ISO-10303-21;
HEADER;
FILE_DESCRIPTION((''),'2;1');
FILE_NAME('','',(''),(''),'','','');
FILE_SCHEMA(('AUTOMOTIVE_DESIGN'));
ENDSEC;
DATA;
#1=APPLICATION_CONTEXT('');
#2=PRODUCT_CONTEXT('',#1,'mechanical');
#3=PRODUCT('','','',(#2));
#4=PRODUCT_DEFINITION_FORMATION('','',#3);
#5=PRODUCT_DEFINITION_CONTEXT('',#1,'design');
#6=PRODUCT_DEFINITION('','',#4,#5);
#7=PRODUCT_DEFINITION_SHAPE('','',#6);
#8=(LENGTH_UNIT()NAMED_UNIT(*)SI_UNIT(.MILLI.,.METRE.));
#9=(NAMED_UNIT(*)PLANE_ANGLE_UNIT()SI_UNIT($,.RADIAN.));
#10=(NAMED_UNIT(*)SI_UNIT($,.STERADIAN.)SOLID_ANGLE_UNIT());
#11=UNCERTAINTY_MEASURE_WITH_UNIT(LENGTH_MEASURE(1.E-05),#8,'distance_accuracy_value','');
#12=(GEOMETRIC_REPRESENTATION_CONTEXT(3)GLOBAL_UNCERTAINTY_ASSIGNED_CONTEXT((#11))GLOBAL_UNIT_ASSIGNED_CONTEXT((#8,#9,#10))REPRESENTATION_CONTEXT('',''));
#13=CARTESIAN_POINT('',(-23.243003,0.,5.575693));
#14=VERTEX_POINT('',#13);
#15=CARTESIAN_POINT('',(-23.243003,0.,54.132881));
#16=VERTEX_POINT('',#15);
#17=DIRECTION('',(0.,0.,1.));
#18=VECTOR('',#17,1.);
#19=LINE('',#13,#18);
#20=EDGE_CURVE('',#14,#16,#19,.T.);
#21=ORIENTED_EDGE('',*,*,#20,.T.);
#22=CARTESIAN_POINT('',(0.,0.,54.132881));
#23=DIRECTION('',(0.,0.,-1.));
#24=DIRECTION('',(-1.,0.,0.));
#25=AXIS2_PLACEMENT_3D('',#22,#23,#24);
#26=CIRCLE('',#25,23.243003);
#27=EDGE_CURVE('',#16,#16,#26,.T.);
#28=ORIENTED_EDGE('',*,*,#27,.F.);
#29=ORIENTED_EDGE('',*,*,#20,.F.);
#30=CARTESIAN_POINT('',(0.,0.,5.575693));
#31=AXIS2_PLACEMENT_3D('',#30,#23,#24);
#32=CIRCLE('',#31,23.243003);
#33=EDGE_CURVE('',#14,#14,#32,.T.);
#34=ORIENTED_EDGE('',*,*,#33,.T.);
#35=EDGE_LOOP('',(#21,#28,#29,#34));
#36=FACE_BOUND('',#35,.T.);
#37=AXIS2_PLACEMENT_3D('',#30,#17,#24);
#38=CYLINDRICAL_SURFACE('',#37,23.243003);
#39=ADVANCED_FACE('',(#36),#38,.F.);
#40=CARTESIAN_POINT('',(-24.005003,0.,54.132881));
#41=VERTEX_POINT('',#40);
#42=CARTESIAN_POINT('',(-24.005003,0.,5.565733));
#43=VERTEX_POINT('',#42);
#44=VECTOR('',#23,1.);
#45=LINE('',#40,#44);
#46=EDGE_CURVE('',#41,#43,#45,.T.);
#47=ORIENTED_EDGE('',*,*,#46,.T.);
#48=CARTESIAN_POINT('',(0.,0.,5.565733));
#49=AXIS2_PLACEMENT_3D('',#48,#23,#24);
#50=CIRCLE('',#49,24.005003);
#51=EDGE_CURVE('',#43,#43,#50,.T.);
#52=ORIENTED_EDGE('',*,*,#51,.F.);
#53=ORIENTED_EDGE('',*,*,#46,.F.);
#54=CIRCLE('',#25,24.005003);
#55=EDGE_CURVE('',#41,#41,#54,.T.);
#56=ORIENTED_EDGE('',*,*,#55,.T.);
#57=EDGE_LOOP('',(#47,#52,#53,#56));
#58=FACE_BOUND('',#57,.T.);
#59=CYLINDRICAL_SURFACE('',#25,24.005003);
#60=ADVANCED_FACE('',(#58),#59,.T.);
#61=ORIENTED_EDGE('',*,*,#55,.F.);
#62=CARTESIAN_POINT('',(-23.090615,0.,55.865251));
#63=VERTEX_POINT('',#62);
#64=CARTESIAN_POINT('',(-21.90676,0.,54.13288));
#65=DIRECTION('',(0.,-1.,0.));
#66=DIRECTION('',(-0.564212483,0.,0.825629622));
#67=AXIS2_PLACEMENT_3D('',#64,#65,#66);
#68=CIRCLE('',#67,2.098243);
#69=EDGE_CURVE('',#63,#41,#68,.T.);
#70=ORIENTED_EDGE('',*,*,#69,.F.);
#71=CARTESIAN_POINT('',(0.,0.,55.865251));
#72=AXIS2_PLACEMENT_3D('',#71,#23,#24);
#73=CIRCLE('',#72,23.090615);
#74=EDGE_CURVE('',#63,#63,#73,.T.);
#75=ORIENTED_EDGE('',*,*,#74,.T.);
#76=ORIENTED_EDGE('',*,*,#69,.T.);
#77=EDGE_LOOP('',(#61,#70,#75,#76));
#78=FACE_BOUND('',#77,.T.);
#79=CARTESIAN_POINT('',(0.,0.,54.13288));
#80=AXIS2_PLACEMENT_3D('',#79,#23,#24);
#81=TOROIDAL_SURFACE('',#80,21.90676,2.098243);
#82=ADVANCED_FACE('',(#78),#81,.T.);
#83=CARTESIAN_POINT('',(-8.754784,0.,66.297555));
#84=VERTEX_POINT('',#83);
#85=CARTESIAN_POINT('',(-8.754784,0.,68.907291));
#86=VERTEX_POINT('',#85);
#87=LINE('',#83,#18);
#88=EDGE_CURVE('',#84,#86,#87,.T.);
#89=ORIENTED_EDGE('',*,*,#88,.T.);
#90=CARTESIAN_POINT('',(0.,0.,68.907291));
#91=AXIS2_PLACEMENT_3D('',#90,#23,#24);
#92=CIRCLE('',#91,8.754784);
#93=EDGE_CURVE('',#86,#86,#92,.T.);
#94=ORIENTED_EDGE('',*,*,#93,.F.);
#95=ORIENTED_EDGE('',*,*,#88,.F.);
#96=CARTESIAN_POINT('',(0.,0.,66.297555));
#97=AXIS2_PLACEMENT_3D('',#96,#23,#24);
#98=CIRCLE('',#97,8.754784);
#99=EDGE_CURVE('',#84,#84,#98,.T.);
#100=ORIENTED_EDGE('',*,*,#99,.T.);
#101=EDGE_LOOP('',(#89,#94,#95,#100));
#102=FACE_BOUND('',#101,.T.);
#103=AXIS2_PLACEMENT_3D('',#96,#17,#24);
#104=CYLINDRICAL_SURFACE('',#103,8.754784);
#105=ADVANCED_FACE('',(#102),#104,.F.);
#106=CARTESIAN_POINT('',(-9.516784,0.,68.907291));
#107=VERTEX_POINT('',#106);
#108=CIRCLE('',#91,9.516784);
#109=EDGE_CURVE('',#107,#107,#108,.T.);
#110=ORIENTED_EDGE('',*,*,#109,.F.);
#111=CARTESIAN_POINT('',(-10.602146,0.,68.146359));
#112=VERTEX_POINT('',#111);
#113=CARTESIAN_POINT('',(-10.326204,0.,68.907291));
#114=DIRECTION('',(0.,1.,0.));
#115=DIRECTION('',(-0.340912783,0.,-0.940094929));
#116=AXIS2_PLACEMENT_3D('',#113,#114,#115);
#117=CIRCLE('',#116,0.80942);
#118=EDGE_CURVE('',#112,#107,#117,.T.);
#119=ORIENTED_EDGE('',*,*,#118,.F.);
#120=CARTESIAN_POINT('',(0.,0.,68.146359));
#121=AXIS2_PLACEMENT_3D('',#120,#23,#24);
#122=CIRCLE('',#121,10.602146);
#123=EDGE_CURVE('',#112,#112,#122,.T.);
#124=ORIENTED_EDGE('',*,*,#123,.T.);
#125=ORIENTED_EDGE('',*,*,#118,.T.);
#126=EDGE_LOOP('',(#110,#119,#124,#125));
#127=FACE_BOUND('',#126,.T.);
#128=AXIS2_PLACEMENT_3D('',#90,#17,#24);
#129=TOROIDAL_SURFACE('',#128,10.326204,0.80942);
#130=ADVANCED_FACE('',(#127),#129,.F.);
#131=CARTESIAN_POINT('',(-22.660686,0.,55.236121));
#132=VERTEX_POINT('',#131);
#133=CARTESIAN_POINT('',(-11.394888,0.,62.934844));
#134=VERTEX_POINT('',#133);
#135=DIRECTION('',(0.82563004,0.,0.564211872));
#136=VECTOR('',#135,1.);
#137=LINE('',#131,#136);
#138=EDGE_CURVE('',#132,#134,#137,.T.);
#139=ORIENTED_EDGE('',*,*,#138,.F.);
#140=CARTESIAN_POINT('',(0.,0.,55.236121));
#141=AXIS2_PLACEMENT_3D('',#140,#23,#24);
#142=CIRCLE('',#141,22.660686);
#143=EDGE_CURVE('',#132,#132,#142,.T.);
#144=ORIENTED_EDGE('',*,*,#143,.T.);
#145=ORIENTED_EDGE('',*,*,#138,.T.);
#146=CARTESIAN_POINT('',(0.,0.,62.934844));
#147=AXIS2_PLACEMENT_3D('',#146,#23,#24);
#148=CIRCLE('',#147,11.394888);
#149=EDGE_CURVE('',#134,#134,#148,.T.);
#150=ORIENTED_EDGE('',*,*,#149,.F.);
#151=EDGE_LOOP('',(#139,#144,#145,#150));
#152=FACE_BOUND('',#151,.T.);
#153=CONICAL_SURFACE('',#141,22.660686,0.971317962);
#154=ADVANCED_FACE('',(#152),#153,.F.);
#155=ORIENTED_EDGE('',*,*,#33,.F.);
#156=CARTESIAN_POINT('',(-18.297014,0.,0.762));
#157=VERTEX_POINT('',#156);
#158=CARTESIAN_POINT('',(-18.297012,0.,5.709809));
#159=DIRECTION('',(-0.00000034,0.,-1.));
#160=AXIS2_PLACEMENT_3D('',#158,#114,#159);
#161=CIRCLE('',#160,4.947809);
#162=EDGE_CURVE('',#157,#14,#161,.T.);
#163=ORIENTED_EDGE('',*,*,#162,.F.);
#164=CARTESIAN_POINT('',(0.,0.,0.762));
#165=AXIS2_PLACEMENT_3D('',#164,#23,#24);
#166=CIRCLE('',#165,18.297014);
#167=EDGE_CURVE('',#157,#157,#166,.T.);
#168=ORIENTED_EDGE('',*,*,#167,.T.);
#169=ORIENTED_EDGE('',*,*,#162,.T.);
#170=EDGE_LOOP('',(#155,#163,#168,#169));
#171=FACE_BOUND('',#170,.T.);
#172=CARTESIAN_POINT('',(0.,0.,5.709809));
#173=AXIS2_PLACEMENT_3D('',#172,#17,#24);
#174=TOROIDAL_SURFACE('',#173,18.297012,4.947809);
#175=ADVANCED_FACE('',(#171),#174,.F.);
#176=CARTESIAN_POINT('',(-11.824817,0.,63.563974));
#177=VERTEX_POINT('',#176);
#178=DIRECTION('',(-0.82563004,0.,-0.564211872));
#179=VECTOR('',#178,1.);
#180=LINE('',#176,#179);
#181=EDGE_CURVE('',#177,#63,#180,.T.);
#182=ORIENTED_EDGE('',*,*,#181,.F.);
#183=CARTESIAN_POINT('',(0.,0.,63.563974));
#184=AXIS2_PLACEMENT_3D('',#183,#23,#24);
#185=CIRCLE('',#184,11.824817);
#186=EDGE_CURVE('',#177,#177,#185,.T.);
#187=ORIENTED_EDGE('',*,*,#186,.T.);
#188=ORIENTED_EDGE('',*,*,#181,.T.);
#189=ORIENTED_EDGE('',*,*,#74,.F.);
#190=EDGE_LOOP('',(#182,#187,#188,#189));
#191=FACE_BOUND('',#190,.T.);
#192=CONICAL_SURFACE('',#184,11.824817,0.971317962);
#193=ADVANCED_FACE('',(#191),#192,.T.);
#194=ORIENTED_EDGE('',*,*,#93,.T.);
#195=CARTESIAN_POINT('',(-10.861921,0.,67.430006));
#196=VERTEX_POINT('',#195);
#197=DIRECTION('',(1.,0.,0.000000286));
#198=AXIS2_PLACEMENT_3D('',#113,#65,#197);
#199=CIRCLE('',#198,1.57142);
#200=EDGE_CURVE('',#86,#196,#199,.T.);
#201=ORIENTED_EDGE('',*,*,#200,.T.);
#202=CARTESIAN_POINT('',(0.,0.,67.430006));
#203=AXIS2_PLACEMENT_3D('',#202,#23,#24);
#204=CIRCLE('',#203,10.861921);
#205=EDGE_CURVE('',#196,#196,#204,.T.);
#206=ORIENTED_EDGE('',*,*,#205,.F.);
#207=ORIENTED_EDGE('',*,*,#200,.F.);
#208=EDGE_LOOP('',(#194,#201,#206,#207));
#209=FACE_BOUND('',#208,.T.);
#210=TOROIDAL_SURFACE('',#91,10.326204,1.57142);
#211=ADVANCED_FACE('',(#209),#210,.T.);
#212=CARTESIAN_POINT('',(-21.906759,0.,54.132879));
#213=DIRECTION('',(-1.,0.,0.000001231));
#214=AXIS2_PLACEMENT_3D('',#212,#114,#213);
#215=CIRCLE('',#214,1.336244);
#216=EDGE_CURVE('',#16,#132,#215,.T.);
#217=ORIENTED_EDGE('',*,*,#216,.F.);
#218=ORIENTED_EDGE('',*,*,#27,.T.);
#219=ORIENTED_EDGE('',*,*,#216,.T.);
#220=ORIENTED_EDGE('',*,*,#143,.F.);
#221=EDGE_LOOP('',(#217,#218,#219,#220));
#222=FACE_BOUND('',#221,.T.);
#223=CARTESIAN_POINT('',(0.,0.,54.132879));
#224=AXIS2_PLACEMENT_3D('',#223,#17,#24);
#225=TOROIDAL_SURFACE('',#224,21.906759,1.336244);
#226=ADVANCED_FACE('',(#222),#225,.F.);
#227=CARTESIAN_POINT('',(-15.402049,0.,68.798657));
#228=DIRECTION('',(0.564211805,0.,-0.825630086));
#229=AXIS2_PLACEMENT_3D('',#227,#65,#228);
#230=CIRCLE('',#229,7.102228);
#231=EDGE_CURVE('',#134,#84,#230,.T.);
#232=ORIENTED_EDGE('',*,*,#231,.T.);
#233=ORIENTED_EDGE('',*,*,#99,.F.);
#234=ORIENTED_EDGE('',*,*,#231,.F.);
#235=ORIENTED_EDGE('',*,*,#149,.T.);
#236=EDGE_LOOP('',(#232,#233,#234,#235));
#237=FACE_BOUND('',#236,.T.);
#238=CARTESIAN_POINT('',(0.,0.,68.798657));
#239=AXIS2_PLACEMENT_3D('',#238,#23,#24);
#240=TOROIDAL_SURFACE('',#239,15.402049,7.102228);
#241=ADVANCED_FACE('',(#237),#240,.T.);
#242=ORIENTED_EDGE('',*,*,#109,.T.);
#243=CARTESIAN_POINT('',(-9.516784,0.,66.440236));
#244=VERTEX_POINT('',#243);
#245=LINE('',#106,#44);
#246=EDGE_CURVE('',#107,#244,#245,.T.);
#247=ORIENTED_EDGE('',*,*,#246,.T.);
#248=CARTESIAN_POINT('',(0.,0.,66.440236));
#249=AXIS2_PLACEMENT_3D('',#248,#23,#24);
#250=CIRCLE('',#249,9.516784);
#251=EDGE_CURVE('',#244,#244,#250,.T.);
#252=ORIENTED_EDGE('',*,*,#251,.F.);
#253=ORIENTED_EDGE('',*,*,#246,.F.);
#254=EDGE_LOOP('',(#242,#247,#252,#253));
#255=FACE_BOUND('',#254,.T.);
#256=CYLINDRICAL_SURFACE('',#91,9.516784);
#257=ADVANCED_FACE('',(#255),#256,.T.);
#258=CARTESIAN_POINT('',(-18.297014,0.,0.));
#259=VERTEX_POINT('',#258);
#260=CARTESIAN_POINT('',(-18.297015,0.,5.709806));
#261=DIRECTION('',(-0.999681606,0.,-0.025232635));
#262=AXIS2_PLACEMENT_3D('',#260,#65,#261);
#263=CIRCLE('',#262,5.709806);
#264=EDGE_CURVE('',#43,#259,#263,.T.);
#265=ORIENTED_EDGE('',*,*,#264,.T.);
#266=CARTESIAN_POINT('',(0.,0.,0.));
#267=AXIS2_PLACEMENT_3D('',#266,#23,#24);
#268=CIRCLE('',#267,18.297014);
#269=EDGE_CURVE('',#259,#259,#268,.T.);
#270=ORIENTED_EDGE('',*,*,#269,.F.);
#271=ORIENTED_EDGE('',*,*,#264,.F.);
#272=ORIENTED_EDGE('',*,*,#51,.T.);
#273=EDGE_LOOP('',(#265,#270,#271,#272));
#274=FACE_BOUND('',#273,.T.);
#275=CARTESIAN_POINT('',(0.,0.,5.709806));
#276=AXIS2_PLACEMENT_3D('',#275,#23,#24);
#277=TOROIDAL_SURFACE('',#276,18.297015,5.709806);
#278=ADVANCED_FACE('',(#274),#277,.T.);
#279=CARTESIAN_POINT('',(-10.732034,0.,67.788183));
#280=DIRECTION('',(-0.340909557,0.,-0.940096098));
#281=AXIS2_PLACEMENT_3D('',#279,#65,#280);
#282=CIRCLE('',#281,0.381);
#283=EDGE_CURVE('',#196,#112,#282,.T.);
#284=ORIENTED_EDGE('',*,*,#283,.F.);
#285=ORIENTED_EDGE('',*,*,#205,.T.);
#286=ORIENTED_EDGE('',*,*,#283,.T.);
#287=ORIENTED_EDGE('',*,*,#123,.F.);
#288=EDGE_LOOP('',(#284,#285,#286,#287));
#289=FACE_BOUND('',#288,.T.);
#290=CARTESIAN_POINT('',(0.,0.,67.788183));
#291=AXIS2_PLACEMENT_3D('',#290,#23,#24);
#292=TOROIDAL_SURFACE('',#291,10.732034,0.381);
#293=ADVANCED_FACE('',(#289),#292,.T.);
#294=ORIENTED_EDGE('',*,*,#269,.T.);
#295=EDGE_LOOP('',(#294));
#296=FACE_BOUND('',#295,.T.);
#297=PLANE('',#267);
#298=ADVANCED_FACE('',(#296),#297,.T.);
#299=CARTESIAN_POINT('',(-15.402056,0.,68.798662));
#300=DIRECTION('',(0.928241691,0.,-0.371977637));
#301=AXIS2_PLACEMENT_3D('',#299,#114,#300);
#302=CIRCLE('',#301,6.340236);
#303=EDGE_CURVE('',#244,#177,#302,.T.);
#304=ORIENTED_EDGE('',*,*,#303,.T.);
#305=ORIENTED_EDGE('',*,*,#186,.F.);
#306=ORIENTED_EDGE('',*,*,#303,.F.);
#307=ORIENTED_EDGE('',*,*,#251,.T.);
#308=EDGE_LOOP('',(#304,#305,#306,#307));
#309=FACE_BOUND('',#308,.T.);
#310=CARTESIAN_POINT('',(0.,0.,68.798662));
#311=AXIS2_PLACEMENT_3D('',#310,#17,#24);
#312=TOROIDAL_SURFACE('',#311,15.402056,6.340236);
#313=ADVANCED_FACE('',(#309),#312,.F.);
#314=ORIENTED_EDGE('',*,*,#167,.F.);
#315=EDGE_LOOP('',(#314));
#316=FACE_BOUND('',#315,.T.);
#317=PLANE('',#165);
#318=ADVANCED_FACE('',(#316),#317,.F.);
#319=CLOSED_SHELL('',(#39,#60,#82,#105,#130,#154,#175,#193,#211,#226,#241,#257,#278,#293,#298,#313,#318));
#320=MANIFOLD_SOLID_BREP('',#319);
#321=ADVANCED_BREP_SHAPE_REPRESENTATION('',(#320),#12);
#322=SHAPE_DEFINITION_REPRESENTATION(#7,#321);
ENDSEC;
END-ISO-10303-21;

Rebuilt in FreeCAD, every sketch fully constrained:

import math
import FreeCAD as App
import Part
import Sketcher
from FreeCAD import Vector
Q = App.Units.Quantity

doc = App.newDocument("Part")
body = doc.addObject("PartDesign::Body", "Body")

# Sketch on XZ plane
sketch1 = doc.addObject("Sketcher::SketchObject", "Sketch")
body.addObject(sketch1)
sketch1.AttachmentSupport = (doc.XZ_Plane, [""])
sketch1.MapMode = "FlatFace"
sketch1.addGeometry([
    Part.LineSegment(Vector(-18.3, 0, 0), Vector(0, 0, 0)),  # 0
    Part.LineSegment(Vector(0, 0, 0), Vector(0, 0.76, 0)),  # 1
    Part.LineSegment(Vector(0, 0.76, 0), Vector(-18.3, 0.76, 0)),  # 2
    Part.ArcOfCircle(Part.Circle(Vector(-18.3, 5.71, 0), Vector(0, 0, 1), 4.95), math.radians(-178), math.radians(-90)),  # 3
    Part.LineSegment(Vector(-23.24, 5.58, 0), Vector(-23.24, 54.13, 0)),  # 4
    Part.ArcOfCircle(Part.Circle(Vector(-21.91, 54.13, 0), Vector(0, 0, 1), 1.34), math.radians(124), math.radians(180)),  # 5
    Part.LineSegment(Vector(-22.66, 55.24, 0), Vector(-11.39, 62.93, 0)),  # 6
    Part.ArcOfCircle(Part.Circle(Vector(-15.4, 68.8, 0), Vector(0, 0, 1), 7.1), math.radians(-56), math.radians(-21)),  # 7
    Part.LineSegment(Vector(-8.75, 66.3, 0), Vector(-8.75, 68.91, 0)),  # 8
    Part.ArcOfCircle(Part.Circle(Vector(-10.33, 68.91, 0), Vector(0, 0, 1), 1.57), math.radians(0), math.radians(250)),  # 9
    Part.ArcOfCircle(Part.Circle(Vector(-10.73, 67.79, 0), Vector(0, 0, 1), 0.38), math.radians(-110), math.radians(70)),  # 10
    Part.ArcOfCircle(Part.Circle(Vector(-10.33, 68.91, 0), Vector(0, 0, 1), 0.81), math.radians(0), math.radians(250)),  # 11
    Part.LineSegment(Vector(-9.52, 68.91, 0), Vector(-9.52, 66.44, 0)),  # 12
    Part.ArcOfCircle(Part.Circle(Vector(-15.4, 68.8, 0), Vector(0, 0, 1), 6.34), math.radians(-56), math.radians(-22)),  # 13
    Part.LineSegment(Vector(-11.82, 63.56, 0), Vector(-23.09, 55.87, 0)),  # 14
    Part.ArcOfCircle(Part.Circle(Vector(-21.91, 54.13, 0), Vector(0, 0, 1), 2.1), math.radians(124), math.radians(180)),  # 15
    Part.LineSegment(Vector(-24.01, 54.13, 0), Vector(-24.01, 5.57, 0)),  # 16
    Part.ArcOfCircle(Part.Circle(Vector(-18.3, 5.71, 0), Vector(0, 0, 1), 5.71), math.radians(-179), math.radians(-90)),  # 17
], False)
sketch1.addConstraint([
    Sketcher.Constraint("Coincident", 0, 2, 1, 1),
    Sketcher.Constraint("Coincident", 1, 2, 2, 1),
    Sketcher.Constraint("Tangent", 2, 2, 3, 2),
    Sketcher.Constraint("Coincident", 3, 1, 4, 1),
    Sketcher.Constraint("Tangent", 4, 2, 5, 2),
    Sketcher.Constraint("Coincident", 5, 1, 6, 1),
    Sketcher.Constraint("Tangent", 6, 2, 7, 1),
    Sketcher.Constraint("Coincident", 7, 2, 8, 1),
    Sketcher.Constraint("Tangent", 8, 2, 9, 1),
    Sketcher.Constraint("Coincident", 9, 2, 10, 1),
    Sketcher.Constraint("Tangent", 10, 2, 11, 2),
    Sketcher.Constraint("Tangent", 11, 1, 12, 1),
    Sketcher.Constraint("Coincident", 12, 2, 13, 2),
    Sketcher.Constraint("Tangent", 13, 1, 14, 1),
    Sketcher.Constraint("Tangent", 14, 2, 15, 1),
    Sketcher.Constraint("Tangent", 15, 2, 16, 1),
    Sketcher.Constraint("Coincident", 16, 2, 17, 1),
    Sketcher.Constraint("Tangent", 17, 2, 0, 1),
    Sketcher.Constraint("Horizontal", 0),
    Sketcher.Constraint("Vertical", 1),
    Sketcher.Constraint("Horizontal", 2),
    Sketcher.Constraint("Vertical", 4),
    Sketcher.Constraint("Vertical", 8),
    Sketcher.Constraint("Vertical", 12),
    Sketcher.Constraint("Vertical", 16),
    Sketcher.Constraint("Coincident", 0, 2, -1, 1),
    Sketcher.Constraint("Coincident", 11, 3, 9, 3),
    Sketcher.Constraint("Coincident", 13, 3, 7, 3),
    Sketcher.Constraint("Coincident", 15, 3, 5, 3),
    Sketcher.Constraint("Coincident", 17, 3, 3, 3),
    Sketcher.Constraint("Parallel", 6, 14),
    Sketcher.Constraint("Equal", 6, 14),
    Sketcher.Constraint("Radius", 10, Q("0.015 in")),
    Sketcher.Constraint("DistanceY", 1, 1, 1, 2, Q("0.03 in")),
    Sketcher.Constraint("DistanceX", 15, 2, 4, 2, Q("0.03 in")),
    Sketcher.Constraint("Radius", 3, Q("4.947809 mm")),
    Sketcher.Constraint("Radius", 9, Q("1.57142 mm")),
    Sketcher.Constraint("Radius", 5, Q("1.336244 mm")),
    Sketcher.Constraint("Radius", 7, Q("7.102228 mm")),
    Sketcher.Constraint("DistanceY", 4, 2, 10, 3, Q("13.655302 mm")),
    Sketcher.Constraint("DistanceY", 7, 2, 7, 3, Q("2.501102 mm")),
    Sketcher.Constraint("DistanceX", 0, 1, 0, 2, Q("18.297014 mm")),
    Sketcher.Constraint("DistanceY", 4, 1, 4, 2, Q("48.557188 mm")),
    Sketcher.Constraint("DistanceY", 8, 1, 8, 2, Q("2.609736 mm")),
    Sketcher.Constraint("DistanceY", 16, 2, 16, 1, Q("48.567148 mm")),
    Sketcher.Constraint("DistanceX", 7, 3, -1, 1, Q("15.402049 mm")),
    Sketcher.Constraint("DistanceY", -1, 1, 9, 3, Q("68.907291 mm")),
    Sketcher.Constraint("DistanceX", 9, 2, -1, 1, Q("10.861921 mm")),
])
revolution = doc.addObject("PartDesign::Revolution", "Revolution")
body.addObject(revolution)
revolution.Profile = sketch1
revolution.ReferenceAxis = (sketch1, ["V_Axis"])
revolution.Angle = 360

doc.recompute()
